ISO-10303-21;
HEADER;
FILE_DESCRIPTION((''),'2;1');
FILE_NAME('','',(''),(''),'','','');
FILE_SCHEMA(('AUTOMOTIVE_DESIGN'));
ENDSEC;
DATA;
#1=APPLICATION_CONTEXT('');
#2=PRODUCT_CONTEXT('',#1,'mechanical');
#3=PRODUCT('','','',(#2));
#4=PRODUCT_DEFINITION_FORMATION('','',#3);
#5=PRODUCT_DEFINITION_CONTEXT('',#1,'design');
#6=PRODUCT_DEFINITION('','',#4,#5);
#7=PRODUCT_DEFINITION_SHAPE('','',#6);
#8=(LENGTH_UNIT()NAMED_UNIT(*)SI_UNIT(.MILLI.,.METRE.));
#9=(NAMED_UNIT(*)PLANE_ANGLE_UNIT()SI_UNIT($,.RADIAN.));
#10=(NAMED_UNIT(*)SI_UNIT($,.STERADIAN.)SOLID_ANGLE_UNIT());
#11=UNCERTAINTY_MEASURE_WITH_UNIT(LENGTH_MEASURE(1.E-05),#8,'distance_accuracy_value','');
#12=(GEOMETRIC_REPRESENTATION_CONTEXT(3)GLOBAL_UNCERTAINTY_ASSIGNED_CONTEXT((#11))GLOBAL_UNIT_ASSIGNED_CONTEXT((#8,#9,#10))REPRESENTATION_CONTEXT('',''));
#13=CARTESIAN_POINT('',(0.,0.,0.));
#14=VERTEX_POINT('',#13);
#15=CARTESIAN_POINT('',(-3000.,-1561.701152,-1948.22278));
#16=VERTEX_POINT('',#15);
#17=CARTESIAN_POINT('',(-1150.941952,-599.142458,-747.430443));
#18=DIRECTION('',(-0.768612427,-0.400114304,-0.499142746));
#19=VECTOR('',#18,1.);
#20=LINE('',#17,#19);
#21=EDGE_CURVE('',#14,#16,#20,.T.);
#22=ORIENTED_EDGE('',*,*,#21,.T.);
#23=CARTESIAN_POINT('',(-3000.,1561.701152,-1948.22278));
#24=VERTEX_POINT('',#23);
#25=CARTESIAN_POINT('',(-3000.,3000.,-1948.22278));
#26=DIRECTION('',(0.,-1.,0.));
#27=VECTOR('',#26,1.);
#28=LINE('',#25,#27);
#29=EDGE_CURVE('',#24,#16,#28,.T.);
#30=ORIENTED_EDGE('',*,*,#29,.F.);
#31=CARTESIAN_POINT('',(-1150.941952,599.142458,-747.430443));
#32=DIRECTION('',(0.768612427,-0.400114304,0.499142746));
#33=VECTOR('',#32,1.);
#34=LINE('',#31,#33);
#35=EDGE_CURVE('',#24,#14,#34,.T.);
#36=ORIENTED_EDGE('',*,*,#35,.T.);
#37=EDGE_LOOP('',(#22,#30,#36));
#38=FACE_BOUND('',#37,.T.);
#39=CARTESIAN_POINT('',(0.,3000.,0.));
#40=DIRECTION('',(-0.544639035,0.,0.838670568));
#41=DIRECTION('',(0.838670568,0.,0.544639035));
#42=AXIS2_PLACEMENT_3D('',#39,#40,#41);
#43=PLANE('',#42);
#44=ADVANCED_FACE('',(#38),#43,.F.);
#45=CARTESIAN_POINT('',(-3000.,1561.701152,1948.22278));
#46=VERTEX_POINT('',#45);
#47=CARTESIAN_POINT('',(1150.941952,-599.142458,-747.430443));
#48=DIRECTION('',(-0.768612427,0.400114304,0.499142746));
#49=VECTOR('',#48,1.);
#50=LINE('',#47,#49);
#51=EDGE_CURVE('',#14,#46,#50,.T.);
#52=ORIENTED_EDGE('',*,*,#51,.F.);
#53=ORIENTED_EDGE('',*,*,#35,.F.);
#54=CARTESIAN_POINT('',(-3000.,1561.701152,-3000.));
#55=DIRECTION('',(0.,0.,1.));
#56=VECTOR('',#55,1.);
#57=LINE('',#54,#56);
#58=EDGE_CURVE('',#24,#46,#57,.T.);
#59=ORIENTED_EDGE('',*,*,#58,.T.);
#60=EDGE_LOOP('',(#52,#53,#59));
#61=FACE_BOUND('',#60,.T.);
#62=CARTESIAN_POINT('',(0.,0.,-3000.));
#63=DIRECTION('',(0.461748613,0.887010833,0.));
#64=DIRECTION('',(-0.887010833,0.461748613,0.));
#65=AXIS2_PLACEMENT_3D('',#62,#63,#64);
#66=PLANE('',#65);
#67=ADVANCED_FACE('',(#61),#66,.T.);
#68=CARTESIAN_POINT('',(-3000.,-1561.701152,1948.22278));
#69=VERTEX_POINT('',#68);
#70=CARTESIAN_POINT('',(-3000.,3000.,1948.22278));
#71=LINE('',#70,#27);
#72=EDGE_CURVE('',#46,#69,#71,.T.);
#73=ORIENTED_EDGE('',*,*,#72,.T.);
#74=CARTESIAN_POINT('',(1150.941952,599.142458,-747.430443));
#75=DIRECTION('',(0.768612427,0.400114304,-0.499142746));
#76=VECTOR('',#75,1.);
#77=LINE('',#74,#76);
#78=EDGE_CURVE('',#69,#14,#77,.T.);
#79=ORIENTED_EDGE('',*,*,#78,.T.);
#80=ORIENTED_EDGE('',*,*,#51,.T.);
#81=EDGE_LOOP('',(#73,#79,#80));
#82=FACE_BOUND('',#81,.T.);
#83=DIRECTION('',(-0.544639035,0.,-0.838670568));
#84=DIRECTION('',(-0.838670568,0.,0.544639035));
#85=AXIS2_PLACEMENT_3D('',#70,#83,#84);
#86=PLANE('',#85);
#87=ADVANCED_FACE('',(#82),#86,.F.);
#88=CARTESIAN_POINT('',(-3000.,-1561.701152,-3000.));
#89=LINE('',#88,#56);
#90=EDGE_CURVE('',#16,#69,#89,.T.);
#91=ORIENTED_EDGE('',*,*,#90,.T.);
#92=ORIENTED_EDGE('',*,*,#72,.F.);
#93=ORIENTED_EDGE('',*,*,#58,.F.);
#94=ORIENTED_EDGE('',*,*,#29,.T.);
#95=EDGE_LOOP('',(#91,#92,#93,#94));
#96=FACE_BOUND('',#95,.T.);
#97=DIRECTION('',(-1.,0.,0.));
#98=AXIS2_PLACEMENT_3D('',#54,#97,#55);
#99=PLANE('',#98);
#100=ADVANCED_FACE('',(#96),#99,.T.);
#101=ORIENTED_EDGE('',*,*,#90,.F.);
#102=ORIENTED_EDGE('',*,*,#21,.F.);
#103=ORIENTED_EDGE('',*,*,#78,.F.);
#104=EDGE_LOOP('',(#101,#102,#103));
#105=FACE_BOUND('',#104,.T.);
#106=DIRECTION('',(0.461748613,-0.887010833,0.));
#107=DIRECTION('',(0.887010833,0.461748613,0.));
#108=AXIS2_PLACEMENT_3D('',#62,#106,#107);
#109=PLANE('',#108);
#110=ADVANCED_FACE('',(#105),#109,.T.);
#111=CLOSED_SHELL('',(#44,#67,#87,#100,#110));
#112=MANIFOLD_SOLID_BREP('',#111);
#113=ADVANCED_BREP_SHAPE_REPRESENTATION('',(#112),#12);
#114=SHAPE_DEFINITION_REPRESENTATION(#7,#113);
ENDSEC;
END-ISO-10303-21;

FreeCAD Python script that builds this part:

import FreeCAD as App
import Part
import Sketcher

V = App.Vector
Q = App.Units.Quantity

doc = App.newDocument("Part")
body = doc.addObject("PartDesign::Body", "Body")

# Sketch on XY plane
sketch1 = body.newObject("Sketcher::SketchObject", "Sketch")
sketch1.AttachmentSupport = (doc.getObject("XY_Plane"), [""])
sketch1.MapMode = "FlatFace"
sketch1.addGeometry([
    Part.LineSegment(V(0, 0, 0), V(-3000, 1562, 0)),
    Part.LineSegment(V(-3000, 1562, 0), V(-3000, -1562, 0)),
    Part.LineSegment(V(-3000, -1562, 0), V(0, 0, 0)),
], False)
sketch1.addConstraint([
    Sketcher.Constraint("Coincident", 0, 2, 1, 1),
    Sketcher.Constraint("Coincident", 1, 2, 2, 1),
    Sketcher.Constraint("Coincident", 2, 2, 0, 1),
    Sketcher.Constraint("Vertical", 1),
    Sketcher.Constraint("Coincident", 2, 2, -1, 1),
    Sketcher.Constraint("Equal", 0, 2),
    Sketcher.Constraint("DistanceX", 0, 2, -1, 1, 3000.0),
    Sketcher.Constraint("Angle", 0, Q("152.5 deg")),
])
pad1 = body.newObject("PartDesign::Pad", "Pad")
pad1.Profile = sketch1
pad1.Type = "TwoLengths"
pad1.Length = 3000
pad1.Length2 = 3000

# Sketch on XZ plane
sketch2 = body.newObject("Sketcher::SketchObject", "Sketch001")
sketch2.AttachmentSupport = (doc.getObject("XZ_Plane"), [""])
sketch2.MapMode = "FlatFace"
sketch2.addGeometry([
    Part.LineSegment(V(-3741, -3741, 0), V(-3741, 3741, 0)),  # 0
    Part.LineSegment(V(-3741, 3741, 0), V(741, 3741, 0)),  # 1
    Part.LineSegment(V(741, 3741, 0), V(741, -3741, 0)),  # 2
    Part.LineSegment(V(741, -3741, 0), V(-3741, -3741, 0)),  # 3
    Part.LineSegment(V(-3000, -1948, 0), V(0, 0, 0)),  # 4
    Part.LineSegment(V(0, 0, 0), V(-3000, 1948, 0)),  # 5
    Part.LineSegment(V(-3000, 1948, 0), V(-3000, -1948, 0)),  # 6
], False)
sketch2.addConstraint([
    Sketcher.Constraint("Coincident", 0, 2, 1, 1),
    Sketcher.Constraint("Coincident", 1, 2, 2, 1),
    Sketcher.Constraint("Coincident", 2, 2, 3, 1),
    Sketcher.Constraint("Coincident", 3, 2, 0, 1),
    Sketcher.Constraint("Coincident", 4, 2, 5, 1),
    Sketcher.Constraint("Coincident", 5, 2, 6, 1),
    Sketcher.Constraint("Coincident", 6, 2, 4, 1),
    Sketcher.Constraint("Vertical", 0),
    Sketcher.Constraint("Horizontal", 1),
    Sketcher.Constraint("Vertical", 2),
    Sketcher.Constraint("Horizontal", 3),
    Sketcher.Constraint("Vertical", 6),
    Sketcher.Constraint("Coincident", 4, 2, -1, 1),
    Sketcher.Constraint("Equal", 4, 5),
    Sketcher.Constraint("Angle", 4, Q("33 deg")),
    Sketcher.Constraint("DistanceX", 5, 2, -1, 1, 3000.0),
    Sketcher.Constraint("DistanceX", 1, 1, 1, 2, 4481.942),
    Sketcher.Constraint("DistanceY", 0, 1, 0, 2, 7481.942),
    Sketcher.Constraint("DistanceX", 0, 2, -1, 1, 3740.971),
    Sketcher.Constraint("DistanceY", -1, 1, 0, 2, 3740.971),
])
pocket1 = body.newObject("PartDesign::Pocket", "Pocket")
pocket1.Profile = sketch2
pocket1.Type = "ThroughAll"
pocket1.Midplane = True

doc.recompute()
